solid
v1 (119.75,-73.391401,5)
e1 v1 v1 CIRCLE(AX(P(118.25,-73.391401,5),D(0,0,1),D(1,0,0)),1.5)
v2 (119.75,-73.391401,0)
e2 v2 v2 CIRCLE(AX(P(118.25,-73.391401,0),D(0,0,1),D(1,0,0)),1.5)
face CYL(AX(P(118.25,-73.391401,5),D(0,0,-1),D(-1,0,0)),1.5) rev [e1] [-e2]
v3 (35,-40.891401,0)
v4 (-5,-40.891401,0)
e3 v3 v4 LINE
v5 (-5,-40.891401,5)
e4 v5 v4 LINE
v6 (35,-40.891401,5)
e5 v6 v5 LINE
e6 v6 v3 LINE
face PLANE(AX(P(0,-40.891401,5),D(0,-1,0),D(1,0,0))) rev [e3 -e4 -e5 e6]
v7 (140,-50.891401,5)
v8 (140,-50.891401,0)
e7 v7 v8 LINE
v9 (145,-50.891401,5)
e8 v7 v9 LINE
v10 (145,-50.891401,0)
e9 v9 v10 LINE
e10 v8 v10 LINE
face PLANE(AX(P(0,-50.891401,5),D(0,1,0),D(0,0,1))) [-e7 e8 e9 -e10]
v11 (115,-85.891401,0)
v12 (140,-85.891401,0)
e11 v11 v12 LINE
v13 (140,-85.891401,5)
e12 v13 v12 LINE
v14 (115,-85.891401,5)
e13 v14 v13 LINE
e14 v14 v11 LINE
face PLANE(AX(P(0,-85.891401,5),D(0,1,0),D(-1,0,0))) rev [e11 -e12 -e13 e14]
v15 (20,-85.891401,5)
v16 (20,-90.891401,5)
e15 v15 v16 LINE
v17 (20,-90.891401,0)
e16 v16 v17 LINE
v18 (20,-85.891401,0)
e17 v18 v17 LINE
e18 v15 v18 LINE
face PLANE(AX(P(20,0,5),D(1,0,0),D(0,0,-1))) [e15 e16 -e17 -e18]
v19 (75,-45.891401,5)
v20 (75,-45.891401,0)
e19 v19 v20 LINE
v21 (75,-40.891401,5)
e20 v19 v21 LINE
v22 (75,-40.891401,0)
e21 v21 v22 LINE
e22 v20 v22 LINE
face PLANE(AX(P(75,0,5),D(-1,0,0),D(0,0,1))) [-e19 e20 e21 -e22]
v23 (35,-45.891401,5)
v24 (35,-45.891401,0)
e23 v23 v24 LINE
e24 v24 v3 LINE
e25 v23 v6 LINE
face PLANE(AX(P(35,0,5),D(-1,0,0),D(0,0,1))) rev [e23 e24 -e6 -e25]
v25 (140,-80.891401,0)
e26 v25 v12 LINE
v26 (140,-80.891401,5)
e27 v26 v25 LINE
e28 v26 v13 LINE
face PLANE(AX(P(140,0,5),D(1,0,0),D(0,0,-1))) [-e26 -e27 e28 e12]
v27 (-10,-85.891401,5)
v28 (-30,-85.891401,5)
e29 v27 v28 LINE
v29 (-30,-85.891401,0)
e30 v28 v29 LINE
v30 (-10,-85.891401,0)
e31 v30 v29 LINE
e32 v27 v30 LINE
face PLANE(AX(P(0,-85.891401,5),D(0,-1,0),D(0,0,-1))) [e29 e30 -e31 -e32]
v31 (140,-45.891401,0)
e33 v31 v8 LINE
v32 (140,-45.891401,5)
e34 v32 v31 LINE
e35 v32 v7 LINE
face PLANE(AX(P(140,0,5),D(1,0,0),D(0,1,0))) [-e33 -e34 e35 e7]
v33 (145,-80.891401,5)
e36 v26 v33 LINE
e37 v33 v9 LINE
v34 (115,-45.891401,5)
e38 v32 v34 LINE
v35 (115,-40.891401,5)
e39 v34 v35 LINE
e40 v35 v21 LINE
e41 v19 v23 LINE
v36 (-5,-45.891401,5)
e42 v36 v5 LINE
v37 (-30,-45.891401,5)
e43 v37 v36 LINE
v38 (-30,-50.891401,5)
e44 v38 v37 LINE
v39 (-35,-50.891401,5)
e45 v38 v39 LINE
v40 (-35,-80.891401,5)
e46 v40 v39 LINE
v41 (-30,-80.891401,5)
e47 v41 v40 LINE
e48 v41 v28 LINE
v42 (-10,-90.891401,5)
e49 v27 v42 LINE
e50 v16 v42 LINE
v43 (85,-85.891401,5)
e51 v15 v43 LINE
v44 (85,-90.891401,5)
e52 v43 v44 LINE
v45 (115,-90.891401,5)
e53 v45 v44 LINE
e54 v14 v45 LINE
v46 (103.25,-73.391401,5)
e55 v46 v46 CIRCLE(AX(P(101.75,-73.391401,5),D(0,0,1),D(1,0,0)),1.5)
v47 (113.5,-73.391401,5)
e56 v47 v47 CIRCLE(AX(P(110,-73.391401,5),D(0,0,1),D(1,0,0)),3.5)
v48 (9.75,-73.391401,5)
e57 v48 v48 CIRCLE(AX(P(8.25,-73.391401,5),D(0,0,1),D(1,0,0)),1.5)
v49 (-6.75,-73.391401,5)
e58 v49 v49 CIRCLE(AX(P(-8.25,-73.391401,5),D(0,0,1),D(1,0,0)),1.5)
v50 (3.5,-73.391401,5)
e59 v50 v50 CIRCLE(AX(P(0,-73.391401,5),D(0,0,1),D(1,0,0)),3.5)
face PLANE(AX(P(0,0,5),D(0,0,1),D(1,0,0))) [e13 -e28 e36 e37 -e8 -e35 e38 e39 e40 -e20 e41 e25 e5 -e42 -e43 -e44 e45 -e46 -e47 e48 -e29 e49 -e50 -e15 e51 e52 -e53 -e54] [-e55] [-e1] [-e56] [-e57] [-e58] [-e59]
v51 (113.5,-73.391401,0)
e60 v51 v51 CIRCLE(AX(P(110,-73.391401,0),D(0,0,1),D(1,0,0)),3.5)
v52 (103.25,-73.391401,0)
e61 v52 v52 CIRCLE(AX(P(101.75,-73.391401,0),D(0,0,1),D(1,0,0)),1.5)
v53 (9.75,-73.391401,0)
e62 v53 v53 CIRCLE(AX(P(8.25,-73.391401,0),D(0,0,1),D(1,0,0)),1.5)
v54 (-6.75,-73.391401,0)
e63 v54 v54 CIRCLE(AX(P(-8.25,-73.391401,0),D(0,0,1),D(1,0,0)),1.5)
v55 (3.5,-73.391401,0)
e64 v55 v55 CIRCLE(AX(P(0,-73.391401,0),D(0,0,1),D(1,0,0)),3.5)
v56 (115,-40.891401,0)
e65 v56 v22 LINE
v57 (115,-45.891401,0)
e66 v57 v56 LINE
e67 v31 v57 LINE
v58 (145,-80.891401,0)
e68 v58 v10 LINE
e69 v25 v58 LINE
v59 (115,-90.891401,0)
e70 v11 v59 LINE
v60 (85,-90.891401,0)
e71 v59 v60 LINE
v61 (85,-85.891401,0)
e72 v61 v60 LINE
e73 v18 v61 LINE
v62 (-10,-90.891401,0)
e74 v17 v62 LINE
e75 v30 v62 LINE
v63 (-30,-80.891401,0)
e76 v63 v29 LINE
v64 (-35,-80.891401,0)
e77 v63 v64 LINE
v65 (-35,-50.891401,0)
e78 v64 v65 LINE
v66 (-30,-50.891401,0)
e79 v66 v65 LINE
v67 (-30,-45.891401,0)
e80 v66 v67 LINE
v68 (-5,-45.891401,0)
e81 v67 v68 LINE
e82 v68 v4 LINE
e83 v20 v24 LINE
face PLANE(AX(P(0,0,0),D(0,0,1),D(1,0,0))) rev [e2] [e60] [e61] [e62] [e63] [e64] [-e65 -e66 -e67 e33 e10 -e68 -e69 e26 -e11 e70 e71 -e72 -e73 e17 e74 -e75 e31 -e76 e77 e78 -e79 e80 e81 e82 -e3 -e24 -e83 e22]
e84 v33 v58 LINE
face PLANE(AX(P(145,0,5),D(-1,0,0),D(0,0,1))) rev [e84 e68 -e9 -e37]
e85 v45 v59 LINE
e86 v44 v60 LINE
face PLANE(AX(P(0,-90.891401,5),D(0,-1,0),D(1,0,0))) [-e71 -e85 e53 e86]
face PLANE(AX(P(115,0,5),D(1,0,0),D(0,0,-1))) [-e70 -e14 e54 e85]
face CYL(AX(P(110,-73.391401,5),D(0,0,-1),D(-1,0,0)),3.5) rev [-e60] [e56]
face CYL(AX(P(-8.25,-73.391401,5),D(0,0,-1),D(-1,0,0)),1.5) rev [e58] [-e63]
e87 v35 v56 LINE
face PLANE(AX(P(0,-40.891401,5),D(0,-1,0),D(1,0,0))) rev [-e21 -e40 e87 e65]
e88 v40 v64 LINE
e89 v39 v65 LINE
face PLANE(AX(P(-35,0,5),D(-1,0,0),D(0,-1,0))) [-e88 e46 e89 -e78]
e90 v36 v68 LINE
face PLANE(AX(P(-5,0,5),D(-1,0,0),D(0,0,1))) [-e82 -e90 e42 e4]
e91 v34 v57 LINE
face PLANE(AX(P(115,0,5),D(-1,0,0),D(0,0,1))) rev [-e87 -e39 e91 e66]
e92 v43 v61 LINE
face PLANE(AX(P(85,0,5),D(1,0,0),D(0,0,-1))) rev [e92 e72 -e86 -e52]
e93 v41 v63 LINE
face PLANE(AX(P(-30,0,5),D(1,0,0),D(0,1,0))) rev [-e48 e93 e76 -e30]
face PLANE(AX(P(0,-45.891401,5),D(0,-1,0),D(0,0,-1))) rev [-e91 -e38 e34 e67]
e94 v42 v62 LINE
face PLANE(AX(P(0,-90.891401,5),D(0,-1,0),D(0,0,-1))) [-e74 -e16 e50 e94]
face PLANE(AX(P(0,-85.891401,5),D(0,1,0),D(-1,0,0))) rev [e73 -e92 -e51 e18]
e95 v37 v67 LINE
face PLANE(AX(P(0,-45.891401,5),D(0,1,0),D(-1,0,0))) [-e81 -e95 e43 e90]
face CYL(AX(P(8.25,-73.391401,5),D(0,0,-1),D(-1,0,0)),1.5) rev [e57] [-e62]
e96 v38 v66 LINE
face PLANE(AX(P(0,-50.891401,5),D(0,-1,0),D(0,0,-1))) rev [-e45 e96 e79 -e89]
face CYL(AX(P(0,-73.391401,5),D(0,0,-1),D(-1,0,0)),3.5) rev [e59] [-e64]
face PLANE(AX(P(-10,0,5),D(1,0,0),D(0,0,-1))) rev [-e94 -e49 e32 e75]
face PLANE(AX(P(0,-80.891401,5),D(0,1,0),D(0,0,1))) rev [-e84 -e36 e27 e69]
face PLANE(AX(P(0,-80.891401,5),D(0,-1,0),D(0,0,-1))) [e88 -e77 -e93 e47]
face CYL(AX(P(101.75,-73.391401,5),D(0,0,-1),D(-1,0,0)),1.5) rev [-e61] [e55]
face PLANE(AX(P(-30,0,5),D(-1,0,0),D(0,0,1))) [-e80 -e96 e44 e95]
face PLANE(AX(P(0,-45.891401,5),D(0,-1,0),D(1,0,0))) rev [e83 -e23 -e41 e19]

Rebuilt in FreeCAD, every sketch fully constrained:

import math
import FreeCAD as App
import Part
import Sketcher
from FreeCAD import Vector


def add_polygon(sketch, points):
    """Adds a closed chain of lines whose ends are joined by coincident constraints."""
    first, n = sketch.GeometryCount, len(points)
    for a, b in zip(points, points[1:] + points[:1]):
        sketch.addGeometry(Part.LineSegment(App.Vector(*a, 0), App.Vector(*b, 0)), False)
    for i in range(n):
        sketch.addConstraint(Sketcher.Constraint("Coincident", first + i, 2, first + (i + 1) % n, 1))

doc = App.newDocument("Part")
body = doc.addObject("PartDesign::Body", "Body")

sketch1 = body.newObject("Sketcher::SketchObject", "Sketch")
sketch1.AttachmentSupport = (doc.getObject("XY_Plane"), [""])
sketch1.MapMode = "FlatFace"
add_polygon(sketch1, [(-30, -45.9), (-30, -50.9), (-35, -50.9), (-35, -80.9), (-30, -80.9), (-30, -85.9), (-10, -85.9), (-10, -90.9), (20, -90.9), (20, -85.9), (85, -85.9), (85, -90.9), (115, -90.9), (115, -85.9), (140, -85.9), (140, -80.9), (145, -80.9), (145, -50.9), (140, -50.9), (140, -45.9), (115, -45.9), (115, -40.9), (75, -40.9), (75, -45.9), (35, -45.9), (35, -40.9), (-5, -40.9), (-5, -45.9)])
sketch1.addGeometry(Part.Circle(Vector(-8.2, -73.4, 0), Vector(0, 0, 1), 1.5), False)
sketch1.addGeometry(Part.ArcOfCircle(Part.Circle(Vector(0, -73.4, 0), Vector(0, 0, 1), 3.5), math.radians(0), math.radians(180)), False)
sketch1.addGeometry(Part.ArcOfCircle(Part.Circle(Vector(0, -73.4, 0), Vector(0, 0, 1), 3.5), math.radians(-90), math.radians(0)), False)
sketch1.addGeometry(Part.ArcOfCircle(Part.Circle(Vector(0, -73.4, 0), Vector(0, 0, 1), 3.5), math.radians(-180), math.radians(-90)), False)
sketch1.addGeometry(Part.Circle(Vector(8.2, -73.4, 0), Vector(0, 0, 1), 1.5), False)
sketch1.addGeometry(Part.Circle(Vector(101.8, -73.4, 0), Vector(0, 0, 1), 1.5), False)
sketch1.addGeometry(Part.ArcOfCircle(Part.Circle(Vector(110, -73.4, 0), Vector(0, 0, 1), 3.5), math.radians(0), math.radians(180)), False)
sketch1.addGeometry(Part.ArcOfCircle(Part.Circle(Vector(110, -73.4, 0), Vector(0, 0, 1), 3.5), math.radians(-90), math.radians(0)), False)
sketch1.addGeometry(Part.ArcOfCircle(Part.Circle(Vector(110, -73.4, 0), Vector(0, 0, 1), 3.5), math.radians(-180), math.radians(-90)), False)
sketch1.addGeometry(Part.Circle(Vector(118.2, -73.4, 0), Vector(0, 0, 1), 1.5), False)
sketch1.addConstraint(Sketcher.Constraint("Tangent", 29, 1, 30, 2))
sketch1.addConstraint(Sketcher.Constraint("Tangent", 30, 1, 31, 2))
sketch1.addConstraint(Sketcher.Constraint("Tangent", 31, 1, 29, 2))
sketch1.addConstraint(Sketcher.Constraint("Tangent", 34, 1, 35, 2))
sketch1.addConstraint(Sketcher.Constraint("Tangent", 35, 1, 36, 2))
sketch1.addConstraint(Sketcher.Constraint("Tangent", 36, 1, 34, 2))
sketch1.addConstraint(Sketcher.Constraint("Vertical", 0))
sketch1.addConstraint(Sketcher.Constraint("Horizontal", 1))
sketch1.addConstraint(Sketcher.Constraint("Vertical", 2))
sketch1.addConstraint(Sketcher.Constraint("Horizontal", 3))
sketch1.addConstraint(Sketcher.Constraint("Vertical", 4))
sketch1.addConstraint(Sketcher.Constraint("Horizontal", 5))
sketch1.addConstraint(Sketcher.Constraint("Vertical", 6))
sketch1.addConstraint(Sketcher.Constraint("Horizontal", 7))
sketch1.addConstraint(Sketcher.Constraint("Vertical", 8))
sketch1.addConstraint(Sketcher.Constraint("Horizontal", 9))
sketch1.addConstraint(Sketcher.Constraint("Vertical", 10))
sketch1.addConstraint(Sketcher.Constraint("Horizontal", 11))
sketch1.addConstraint(Sketcher.Constraint("Vertical", 12))
sketch1.addConstraint(Sketcher.Constraint("Horizontal", 13))
sketch1.addConstraint(Sketcher.Constraint("Vertical", 14))
sketch1.addConstraint(Sketcher.Constraint("Horizontal", 15))
sketch1.addConstraint(Sketcher.Constraint("Vertical", 16))
sketch1.addConstraint(Sketcher.Constraint("Horizontal", 17))
sketch1.addConstraint(Sketcher.Constraint("Vertical", 18))
sketch1.addConstraint(Sketcher.Constraint("Horizontal", 19))
sketch1.addConstraint(Sketcher.Constraint("Vertical", 20))
sketch1.addConstraint(Sketcher.Constraint("Horizontal", 21))
sketch1.addConstraint(Sketcher.Constraint("Vertical", 22))
sketch1.addConstraint(Sketcher.Constraint("Horizontal", 23))
sketch1.addConstraint(Sketcher.Constraint("Vertical", 24))
sketch1.addConstraint(Sketcher.Constraint("Horizontal", 25))
sketch1.addConstraint(Sketcher.Constraint("Vertical", 26))
sketch1.addConstraint(Sketcher.Constraint("Horizontal", 27))
sketch1.addConstraint(Sketcher.Constraint("Equal", 28, 32))
sketch1.addConstraint(Sketcher.Constraint("Equal", 32, 33))
sketch1.addConstraint(Sketcher.Constraint("Equal", 31, 34))
sketch1.addConstraint(Sketcher.Constraint("Equal", 33, 37))
sketch1.addConstraint(Sketcher.Constraint("Symmetric", 28, 3, 32, 3, -2))
sketch1.addConstraint(Sketcher.Constraint("Symmetric", 29, 1, 31, 1, -2))
sketch1.addConstraint(Sketcher.Constraint("PointOnObject", 30, 1, -2))
sketch1.addConstraint(Sketcher.Constraint("Horizontal", 28, 3, 29, 3))
sketch1.addConstraint(Sketcher.Constraint("Horizontal", 32, 3, 33, 3))
sketch1.addConstraint(Sketcher.Constraint("Horizontal", 33, 3, 34, 3))
sketch1.addConstraint(Sketcher.Constraint("Horizontal", 36, 3, 37, 3))
sketch1.addConstraint(Sketcher.Constraint("Horizontal", 5, 2, 8, 2))
sketch1.addConstraint(Sketcher.Constraint("Horizontal", 7, 2, 10, 2))
sketch1.addConstraint(Sketcher.Constraint("Horizontal", 9, 2, 12, 2))
sketch1.addConstraint(Sketcher.Constraint("Horizontal", 3, 2, 14, 2))
sketch1.addConstraint(Sketcher.Constraint("Horizontal", 1, 2, 16, 2))
sketch1.addConstraint(Sketcher.Constraint("Horizontal", 19, 2, 22, 2))
sketch1.addConstraint(Sketcher.Constraint("Horizontal", 21, 2, 24, 2))
sketch1.addConstraint(Sketcher.Constraint("Horizontal", 23, 2, 26, 2))
sketch1.addConstraint(Sketcher.Constraint("Horizontal", 37, 3, 29, 1))
sketch1.addConstraint(Sketcher.Constraint("Horizontal", 31, 1, 34, 1))
sketch1.addConstraint(Sketcher.Constraint("Horizontal", 34, 1, 36, 1))
sketch1.addConstraint(Sketcher.Constraint("Vertical", 0, 2, 3, 2))
sketch1.addConstraint(Sketcher.Constraint("Vertical", 14, 2, 17, 2))
sketch1.addConstraint(Sketcher.Constraint("Vertical", 12, 2, 19, 2))
sketch1.addConstraint(Sketcher.Constraint("Vertical", 36, 3, 35, 1))
sketch1.addConstraint(Sketcher.Constraint("Equal", 7, 11))
sketch1.addConstraint(Sketcher.Constraint("Equal", 3, 15))
sketch1.addConstraint(Sketcher.Constraint("Equal", 21, 23))
sketch1.addConstraint(Sketcher.Constraint("Equal", 23, 25))
sketch1.addConstraint(Sketcher.Constraint("Equal", 19, 27))
sketch1.addConstraint(Sketcher.Constraint("Equal", 17, 0))
sketch1.addConstraint(Sketcher.Constraint("Equal", 11, 2))
sketch1.addConstraint(Sketcher.Constraint("Equal", 0, 4))
sketch1.addConstraint(Sketcher.Constraint("Equal", 4, 6))
sketch1.addConstraint(Sketcher.Constraint("Equal", 18, 20))
sketch1.addConstraint(Sketcher.Constraint("Diameter", 28, 3.0))
sketch1.addConstraint(Sketcher.Constraint("Radius", 29, 3.5))
sketch1.addConstraint(Sketcher.Constraint("DistanceX", 1, 2, 1, 1, 5.0))
sketch1.addConstraint(Sketcher.Constraint("DistanceX", 5, 1, 5, 2, 20.0))
sketch1.addConstraint(Sketcher.Constraint("DistanceX", 7, 1, 7, 2, 30.0))
sketch1.addConstraint(Sketcher.Constraint("DistanceX", 9, 1, 9, 2, 65.0))
sketch1.addConstraint(Sketcher.Constraint("DistanceX", 13, 1, 13, 2, 25.0))
sketch1.addConstraint(Sketcher.Constraint("DistanceX", -1, 1, 34, 3, 110.0))
sketch1.addConstraint(Sketcher.Constraint("DistanceX", 0, 2, -1, 1, 30.0))
sketch1.addConstraint(Sketcher.Constraint("DistanceX", 28, 3, 33, 3, 110.0))
sketch1.addConstraint(Sketcher.Constraint("DistanceX", 32, 3, 37, 3, 110.0))
sketch1.addConstraint(Sketcher.Constraint("DistanceX", 28, 3, 32, 3, 16.5))
sketch1.addConstraint(Sketcher.Constraint("DistanceY", 28, 3, 0, 2, 22.5))
sketch1.addConstraint(Sketcher.Constraint("DistanceY", 28, 3, -1, 1, 73.391401))
pad1 = body.newObject("PartDesign::Pad", "Pad")
pad1.Profile = sketch1
pad1.Length = 5

doc.recompute()
